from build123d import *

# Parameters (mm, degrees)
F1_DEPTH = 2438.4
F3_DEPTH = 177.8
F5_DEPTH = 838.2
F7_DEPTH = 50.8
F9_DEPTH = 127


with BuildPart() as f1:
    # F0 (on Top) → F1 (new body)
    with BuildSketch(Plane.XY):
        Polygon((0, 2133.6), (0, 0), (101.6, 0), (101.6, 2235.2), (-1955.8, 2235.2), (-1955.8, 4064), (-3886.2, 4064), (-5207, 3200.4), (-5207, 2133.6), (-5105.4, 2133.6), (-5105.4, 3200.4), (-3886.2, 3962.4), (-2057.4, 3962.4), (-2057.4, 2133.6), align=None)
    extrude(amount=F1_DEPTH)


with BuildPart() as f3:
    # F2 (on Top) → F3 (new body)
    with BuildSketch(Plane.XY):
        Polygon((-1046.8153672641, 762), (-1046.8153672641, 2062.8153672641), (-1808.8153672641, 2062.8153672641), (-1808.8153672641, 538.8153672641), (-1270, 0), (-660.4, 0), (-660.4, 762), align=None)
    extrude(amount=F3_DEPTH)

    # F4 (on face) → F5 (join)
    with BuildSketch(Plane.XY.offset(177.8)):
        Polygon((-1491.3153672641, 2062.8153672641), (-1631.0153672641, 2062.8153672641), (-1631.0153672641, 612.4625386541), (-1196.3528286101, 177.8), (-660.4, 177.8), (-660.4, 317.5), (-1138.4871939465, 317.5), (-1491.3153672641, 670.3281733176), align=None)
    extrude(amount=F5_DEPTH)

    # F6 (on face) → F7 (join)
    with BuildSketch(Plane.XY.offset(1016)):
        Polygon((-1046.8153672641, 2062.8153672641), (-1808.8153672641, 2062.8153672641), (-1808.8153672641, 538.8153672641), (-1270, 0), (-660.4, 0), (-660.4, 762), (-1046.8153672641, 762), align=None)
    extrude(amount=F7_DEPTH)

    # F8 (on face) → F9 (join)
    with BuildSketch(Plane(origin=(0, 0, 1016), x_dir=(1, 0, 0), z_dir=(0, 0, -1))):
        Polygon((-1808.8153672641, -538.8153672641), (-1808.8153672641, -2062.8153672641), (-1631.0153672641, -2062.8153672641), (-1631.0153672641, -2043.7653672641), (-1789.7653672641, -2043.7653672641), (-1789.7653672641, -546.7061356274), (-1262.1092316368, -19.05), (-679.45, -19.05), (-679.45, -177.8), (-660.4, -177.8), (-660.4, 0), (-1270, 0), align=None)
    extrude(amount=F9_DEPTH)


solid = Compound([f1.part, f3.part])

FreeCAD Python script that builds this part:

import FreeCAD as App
import Part
import Sketcher
Q = App.Units.Quantity

doc = App.newDocument("Part")
body = doc.addObject("PartDesign::Body", "Body")

# Sketch on XY plane
sketch1 = body.newObject("Sketcher::SketchObject", "Sketch")
sketch1.AttachmentSupport = (doc.getObject("XY_Plane"), [""])
sketch1.MapMode = "FlatFace"
sketch1.addGeometry(Part.LineSegment(App.Vector(0, 2134, 0), App.Vector(0, 0, 0)), False)
sketch1.addGeometry(Part.LineSegment(App.Vector(0, 0, 0), App.Vector(102, 0, 0)), False)
sketch1.addGeometry(Part.LineSegment(App.Vector(102, 0, 0), App.Vector(102, 2235, 0)), False)
sketch1.addGeometry(Part.LineSegment(App.Vector(102, 2235, 0), App.Vector(-1956, 2235, 0)), False)
sketch1.addGeometry(Part.LineSegment(App.Vector(-1956, 2235, 0), App.Vector(-1956, 4064, 0)), False)
sketch1.addGeometry(Part.LineSegment(App.Vector(-1956, 4064, 0), App.Vector(-3886, 4064, 0)), False)
sketch1.addGeometry(Part.LineSegment(App.Vector(-3886, 4064, 0), App.Vector(-5207, 3200, 0)), False)
sketch1.addGeometry(Part.LineSegment(App.Vector(-5207, 3200, 0), App.Vector(-5207, 2134, 0)), False)
sketch1.addGeometry(Part.LineSegment(App.Vector(-5207, 2134, 0), App.Vector(-5105, 2134, 0)), False)
sketch1.addGeometry(Part.LineSegment(App.Vector(-5105, 2134, 0), App.Vector(-5105, 3200, 0)), False)
sketch1.addGeometry(Part.LineSegment(App.Vector(-5105, 3200, 0), App.Vector(-3886, 3962, 0)), False)
sketch1.addGeometry(Part.LineSegment(App.Vector(-3886, 3962, 0), App.Vector(-2057, 3962, 0)), False)
sketch1.addGeometry(Part.LineSegment(App.Vector(-2057, 3962, 0), App.Vector(-2057, 2134, 0)), False)
sketch1.addGeometry(Part.LineSegment(App.Vector(-2057, 2134, 0), App.Vector(0, 2134, 0)), False)
sketch1.addConstraint(Sketcher.Constraint("Coincident", 0, 2, 1, 1))
sketch1.addConstraint(Sketcher.Constraint("Coincident", 1, 2, 2, 1))
sketch1.addConstraint(Sketcher.Constraint("Coincident", 2, 2, 3, 1))
sketch1.addConstraint(Sketcher.Constraint("Coincident", 3, 2, 4, 1))
sketch1.addConstraint(Sketcher.Constraint("Coincident", 4, 2, 5, 1))
sketch1.addConstraint(Sketcher.Constraint("Coincident", 5, 2, 6, 1))
sketch1.addConstraint(Sketcher.Constraint("Coincident", 6, 2, 7, 1))
sketch1.addConstraint(Sketcher.Constraint("Coincident", 7, 2, 8, 1))
sketch1.addConstraint(Sketcher.Constraint("Coincident", 8, 2, 9, 1))
sketch1.addConstraint(Sketcher.Constraint("Coincident", 9, 2, 10, 1))
sketch1.addConstraint(Sketcher.Constraint("Coincident", 10, 2, 11, 1))
sketch1.addConstraint(Sketcher.Constraint("Coincident", 11, 2, 12, 1))
sketch1.addConstraint(Sketcher.Constraint("Coincident", 12, 2, 13, 1))
sketch1.addConstraint(Sketcher.Constraint("Coincident", 13, 2, 0, 1))
sketch1.addConstraint(Sketcher.Constraint("Vertical", 0))
sketch1.addConstraint(Sketcher.Constraint("Horizontal", 1))
sketch1.addConstraint(Sketcher.Constraint("Vertical", 2))
sketch1.addConstraint(Sketcher.Constraint("Horizontal", 3))
sketch1.addConstraint(Sketcher.Constraint("Vertical", 4))
sketch1.addConstraint(Sketcher.Constraint("Horizontal", 5))
sketch1.addConstraint(Sketcher.Constraint("Vertical", 7))
sketch1.addConstraint(Sketcher.Constraint("Horizontal", 8))
sketch1.addConstraint(Sketcher.Constraint("Vertical", 9))
sketch1.addConstraint(Sketcher.Constraint("Horizontal", 11))
sketch1.addConstraint(Sketcher.Constraint("Vertical", 12))
sketch1.addConstraint(Sketcher.Constraint("Horizontal", 13))
sketch1.addConstraint(Sketcher.Constraint("Coincident", 0, 2, -1, 1))
sketch1.addConstraint(Sketcher.Constraint("Horizontal", 6, 2, 9, 2))
sketch1.addConstraint(Sketcher.Constraint("Horizontal", 8, 2, 12, 2))
sketch1.addConstraint(Sketcher.Constraint("Vertical", 5, 2, 10, 2))
sketch1.addConstraint(Sketcher.Constraint("Equal", 1, 8))
sketch1.addConstraint(Sketcher.Constraint("Equal", 3, 13))
sketch1.addConstraint(Sketcher.Constraint("Equal", 11, 4))
sketch1.addConstraint(Sketcher.Constraint("Equal", 4, 12))
sketch1.addConstraint(Sketcher.Constraint("DistanceX", 1, 1, 1, 2, Q("4 in")))
sketch1.addConstraint(Sketcher.Constraint("DistanceX", 3, 2, 3, 1, Q("81 in")))
sketch1.addConstraint(Sketcher.Constraint("DistanceX", 5, 2, 5, 1, Q("76 in")))
sketch1.addConstraint(Sketcher.Constraint("DistanceY", 0, 2, 0, 1, Q("84 in")))
sketch1.addConstraint(Sketcher.Constraint("DistanceY", 2, 1, 2, 2, Q("88 in")))
sketch1.addConstraint(Sketcher.Constraint("DistanceY", 7, 2, 7, 1, Q("42 in")))
sketch1.addConstraint(Sketcher.Constraint("DistanceX", 6, 2, -1, 1, Q("205 in")))
pad1 = body.newObject("PartDesign::Pad", "Pad")
pad1.Profile = sketch1
pad1.Length = Q("96 in")
body2 = doc.addObject("PartDesign::Body", "Body001")

# Sketch on XY plane
sketch2 = body2.newObject("Sketcher::SketchObject", "Sketch001")
sketch2.AttachmentSupport = (doc.getObject("XY_Plane001"), [""])
sketch2.MapMode = "FlatFace"
sketch2.addGeometry(Part.LineSegment(App.Vector(-1047, 762, 0), App.Vector(-1047, 2063, 0)), False)
sketch2.addGeometry(Part.LineSegment(App.Vector(-1047, 2063, 0), App.Vector(-1809, 2063, 0)), False)
sketch2.addGeometry(Part.LineSegment(App.Vector(-1809, 2063, 0), App.Vector(-1809, 539, 0)), False)
sketch2.addGeometry(Part.LineSegment(App.Vector(-1809, 539, 0), App.Vector(-1270, 0, 0)), False)
sketch2.addGeometry(Part.LineSegment(App.Vector(-1270, 0, 0), App.Vector(-660, 0, 0)), False)
sketch2.addGeometry(Part.LineSegment(App.Vector(-660, 0, 0), App.Vector(-660, 762, 0)), False)
sketch2.addGeometry(Part.LineSegment(App.Vector(-660, 762, 0), App.Vector(-1047, 762, 0)), False)
sketch2.addConstraint(Sketcher.Constraint("Coincident", 0, 2, 1, 1))
sketch2.addConstraint(Sketcher.Constraint("Coincident", 1, 2, 2, 1))
sketch2.addConstraint(Sketcher.Constraint("Coincident", 2, 2, 3, 1))
sketch2.addConstraint(Sketcher.Constraint("Coincident", 3, 2, 4, 1))
sketch2.addConstraint(Sketcher.Constraint("Coincident", 4, 2, 5, 1))
sketch2.addConstraint(Sketcher.Constraint("Coincident", 5, 2, 6, 1))
sketch2.addConstraint(Sketcher.Constraint("Coincident", 6, 2, 0, 1))
sketch2.addConstraint(Sketcher.Constraint("Vertical", 0))
sketch2.addConstraint(Sketcher.Constraint("Horizontal", 1))
sketch2.addConstraint(Sketcher.Constraint("Vertical", 2))
sketch2.addConstraint(Sketcher.Constraint("Horizontal", 4))
sketch2.addConstraint(Sketcher.Constraint("Vertical", 5))
sketch2.addConstraint(Sketcher.Constraint("Horizontal", 6))
sketch2.addConstraint(Sketcher.Constraint("PointOnObject", 3, 2, -1))
sketch2.addConstraint(Sketcher.Constraint("Equal", 1, 5))
sketch2.addConstraint(Sketcher.Constraint("DistanceX", 1, 2, 1, 1, Q("30 in")))
sketch2.addConstraint(Sketcher.Constraint("DistanceX", 4, 1, 4, 2, Q("24 in")))
sketch2.addConstraint(Sketcher.Constraint("DistanceY", 2, 2, 2, 1, Q("60 in")))
sketch2.addConstraint(Sketcher.Constraint("Distance", 3, Q("30 in")))
sketch2.addConstraint(Sketcher.Constraint("DistanceX", 3, 2, -1, 1, Q("50 in")))
sketch2.addConstraint(Sketcher.Constraint("Angle", 3, Q("-45 deg")))
pad2 = body2.newObject("PartDesign::Pad", "Pad001")
pad2.Profile = sketch2
pad2.Length = Q("7 in")

# Sketch on XY plane
sketch3 = body2.newObject("Sketcher::SketchObject", "Sketch002")
sketch3.AttachmentSupport = (doc.getObject("XY_Plane001"), [""])
sketch3.MapMode = "FlatFace"
sketch3.AttachmentOffset = App.Placement(App.Vector(0, 0, 7 * 25.4), App.Rotation())
sketch3.addGeometry(Part.LineSegment(App.Vector(-1491, 2063, 0), App.Vector(-1631, 2063, 0)), False)
sketch3.addGeometry(Part.LineSegment(App.Vector(-1631, 2063, 0), App.Vector(-1631, 612, 0)), False)
sketch3.addGeometry(Part.LineSegment(App.Vector(-1631, 612, 0), App.Vector(-1196, 178, 0)), False)
sketch3.addGeometry(Part.LineSegment(App.Vector(-1196, 178, 0), App.Vector(-660, 178, 0)), False)
sketch3.addGeometry(Part.LineSegment(App.Vector(-660, 178, 0), App.Vector(-660, 318, 0)), False)
sketch3.addGeometry(Part.LineSegment(App.Vector(-660, 318, 0), App.Vector(-1138, 318, 0)), False)
sketch3.addGeometry(Part.LineSegment(App.Vector(-1138, 318, 0), App.Vector(-1491, 670, 0)), False)
sketch3.addGeometry(Part.LineSegment(App.Vector(-1491, 670, 0), App.Vector(-1491, 2063, 0)), False)
sketch3.addConstraint(Sketcher.Constraint("Coincident", 0, 2, 1, 1))
sketch3.addConstraint(Sketcher.Constraint("Coincident", 1, 2, 2, 1))
sketch3.addConstraint(Sketcher.Constraint("Coincident", 2, 2, 3, 1))
sketch3.addConstraint(Sketcher.Constraint("Coincident", 3, 2, 4, 1))
sketch3.addConstraint(Sketcher.Constraint("Coincident", 4, 2, 5, 1))
sketch3.addConstraint(Sketcher.Constraint("Coincident", 5, 2, 6, 1))
sketch3.addConstraint(Sketcher.Constraint("Coincident", 6, 2, 7, 1))
sketch3.addConstraint(Sketcher.Constraint("Coincident", 7, 2, 0, 1))
sketch3.addConstraint(Sketcher.Constraint("Horizontal", 0))
sketch3.addConstraint(Sketcher.Constraint("Vertical", 1))
sketch3.addConstraint(Sketcher.Constraint("Horizontal", 3))
sketch3.addConstraint(Sketcher.Constraint("Vertical", 4))
sketch3.addConstraint(Sketcher.Constraint("Horizontal", 5))
sketch3.addConstraint(Sketcher.Constraint("Vertical", 7))
sketch3.addConstraint(Sketcher.Constraint("Parallel", 2, 6))
sketch3.addConstraint(Sketcher.Constraint("Equal", 0, 4))
sketch3.addConstraint(Sketcher.Constraint("DistanceX", 0, 2, 0, 1, Q("5.5 in")))
sketch3.addConstraint(Sketcher.Constraint("DistanceY", -1, 1, 2, 2, Q("7 in")))
sketch3.addConstraint(Sketcher.Constraint("DistanceX", 3, 2, -1, 1, Q("26 in")))
sketch3.addConstraint(Sketcher.Constraint("Angle", 2, Q("-45 deg")))
sketch3.addConstraint(Sketcher.Constraint("DistanceX", 3, 1, 3, 2, 535.952829))
sketch3.addConstraint(Sketcher.Constraint("DistanceY", 1, 2, 1, 1, 1450.352829))
sketch3.addConstraint(Sketcher.Constraint("DistanceX", 5, 2, 5, 1, 478.087194))
sketch3.addConstraint(Sketcher.Constraint("DistanceY", -1, 1, 1, 2, 612.462539))
pad3 = body2.newObject("PartDesign::Pad", "Pad002")
pad3.Profile = sketch3
pad3.Length = Q("33 in")

# Sketch on XY plane
sketch4 = body2.newObject("Sketcher::SketchObject", "Sketch003")
sketch4.AttachmentSupport = (doc.getObject("XY_Plane001"), [""])
sketch4.MapMode = "FlatFace"
sketch4.AttachmentOffset = App.Placement(App.Vector(0, 0, 40 * 25.4), App.Rotation())
sketch4.addGeometry(Part.LineSegment(App.Vector(-1047, 2063, 0), App.Vector(-1809, 2063, 0)), False)
sketch4.addGeometry(Part.LineSegment(App.Vector(-1809, 2063, 0), App.Vector(-1809, 539, 0)), False)
sketch4.addGeometry(Part.LineSegment(App.Vector(-1809, 539, 0), App.Vector(-1270, 0, 0)), False)
sketch4.addGeometry(Part.LineSegment(App.Vector(-1270, 0, 0), App.Vector(-660, 0, 0)), False)
sketch4.addGeometry(Part.LineSegment(App.Vector(-660, 0, 0), App.Vector(-660, 762, 0)), False)
sketch4.addGeometry(Part.LineSegment(App.Vector(-660, 762, 0), App.Vector(-1047, 762, 0)), False)
sketch4.addGeometry(Part.LineSegment(App.Vector(-1047, 762, 0), App.Vector(-1047, 2063, 0)), False)
sketch4.addConstraint(Sketcher.Constraint("Coincident", 0, 2, 1, 1))
sketch4.addConstraint(Sketcher.Constraint("Coincident", 1, 2, 2, 1))
sketch4.addConstraint(Sketcher.Constraint("Coincident", 2, 2, 3, 1))
sketch4.addConstraint(Sketcher.Constraint("Coincident", 3, 2, 4, 1))
sketch4.addConstraint(Sketcher.Constraint("Coincident", 4, 2, 5, 1))
sketch4.addConstraint(Sketcher.Constraint("Coincident", 5, 2, 6, 1))
sketch4.addConstraint(Sketcher.Constraint("Coincident", 6, 2, 0, 1))
sketch4.addConstraint(Sketcher.Constraint("Horizontal", 0))
sketch4.addConstraint(Sketcher.Constraint("Vertical", 1))
sketch4.addConstraint(Sketcher.Constraint("Horizontal", 3))
sketch4.addConstraint(Sketcher.Constraint("Vertical", 4))
sketch4.addConstraint(Sketcher.Constraint("Horizontal", 5))
sketch4.addConstraint(Sketcher.Constraint("Vertical", 6))
sketch4.addConstraint(Sketcher.Constraint("PointOnObject", 2, 2, -1))
sketch4.addConstraint(Sketcher.Constraint("Equal", 0, 4))
sketch4.addConstraint(Sketcher.Constraint("DistanceX", 0, 2, 0, 1, Q("30 in")))
sketch4.addConstraint(Sketcher.Constraint("DistanceX", 3, 1, 3, 2, Q("24 in")))
sketch4.addConstraint(Sketcher.Constraint("DistanceY", 1, 2, 1, 1, Q("60 in")))
sketch4.addConstraint(Sketcher.Constraint("Distance", 2, Q("30 in")))
sketch4.addConstraint(Sketcher.Constraint("DistanceX", 2, 2, -1, 1, Q("50 in")))
sketch4.addConstraint(Sketcher.Constraint("Angle", 2, Q("-45 deg")))
pad4 = body2.newObject("PartDesign::Pad", "Pad003")
pad4.Profile = sketch4
pad4.Length = Q("2 in")

# Sketch on XY plane
sketch5 = body2.newObject("Sketcher::SketchObject", "Sketch004")
sketch5.AttachmentSupport = (doc.getObject("XY_Plane001"), [""])
sketch5.MapMode = "FlatFace"
sketch5.AttachmentOffset = App.Placement(App.Vector(0, 0, 40 * 25.4), App.Rotation())
sketch5.addGeometry(Part.LineSegment(App.Vector(-1809, 539, 0), App.Vector(-1809, 2063, 0)), False)
sketch5.addGeometry(Part.LineSegment(App.Vector(-1809, 2063, 0), App.Vector(-1631, 2063, 0)), False)
sketch5.addGeometry(Part.LineSegment(App.Vector(-1631, 2063, 0), App.Vector(-1631, 2044, 0)), False)
sketch5.addGeometry(Part.LineSegment(App.Vector(-1631, 2044, 0), App.Vector(-1790, 2044, 0)), False)
sketch5.addGeometry(Part.LineSegment(App.Vector(-1790, 2044, 0), App.Vector(-1790, 547, 0)), False)
sketch5.addGeometry(Part.LineSegment(App.Vector(-1790, 547, 0), App.Vector(-1262, 19, 0)), False)
sketch5.addGeometry(Part.LineSegment(App.Vector(-1262, 19, 0), App.Vector(-679, 19, 0)), False)
sketch5.addGeometry(Part.LineSegment(App.Vector(-679, 19, 0), App.Vector(-679, 178, 0)), False)
sketch5.addGeometry(Part.LineSegment(App.Vector(-679, 178, 0), App.Vector(-660, 178, 0)), False)
sketch5.addGeometry(Part.LineSegment(App.Vector(-660, 178, 0), App.Vector(-660, 0, 0)), False)
sketch5.addGeometry(Part.LineSegment(App.Vector(-660, 0, 0), App.Vector(-1270, 0, 0)), False)
sketch5.addGeometry(Part.LineSegment(App.Vector(-1270, 0, 0), App.Vector(-1809, 539, 0)), False)
sketch5.addConstraint(Sketcher.Constraint("Coincident", 0, 2, 1, 1))
sketch5.addConstraint(Sketcher.Constraint("Coincident", 1, 2, 2, 1))
sketch5.addConstraint(Sketcher.Constraint("Coincident", 2, 2, 3, 1))
sketch5.addConstraint(Sketcher.Constraint("Coincident", 3, 2, 4, 1))
sketch5.addConstraint(Sketcher.Constraint("Coincident", 4, 2, 5, 1))
sketch5.addConstraint(Sketcher.Constraint("Coincident", 5, 2, 6, 1))
sketch5.addConstraint(Sketcher.Constraint("Coincident", 6, 2, 7, 1))
sketch5.addConstraint(Sketcher.Constraint("Coincident", 7, 2, 8, 1))
sketch5.addConstraint(Sketcher.Constraint("Coincident", 8, 2, 9, 1))
sketch5.addConstraint(Sketcher.Constraint("Coincident", 9, 2, 10, 1))
sketch5.addConstraint(Sketcher.Constraint("Coincident", 10, 2, 11, 1))
sketch5.addConstraint(Sketcher.Constraint("Coincident", 11, 2, 0, 1))
sketch5.addConstraint(Sketcher.Constraint("Vertical", 0))
sketch5.addConstraint(Sketcher.Constraint("Horizontal", 1))
sketch5.addConstraint(Sketcher.Constraint("Vertical", 2))
sketch5.addConstraint(Sketcher.Constraint("Horizontal", 3))
sketch5.addConstraint(Sketcher.Constraint("Vertical", 4))
sketch5.addConstraint(Sketcher.Constraint("Horizontal", 6))
sketch5.addConstraint(Sketcher.Constraint("Vertical", 7))
sketch5.addConstraint(Sketcher.Constraint("Horizontal", 8))
sketch5.addConstraint(Sketcher.Constraint("Vertical", 9))
sketch5.addConstraint(Sketcher.Constraint("Horizontal", 10))
sketch5.addConstraint(Sketcher.Constraint("PointOnObject", 9, 2, -1))
sketch5.addConstraint(Sketcher.Constraint("Parallel", 5, 11))
sketch5.addConstraint(Sketcher.Constraint("Equal", 8, 2))
sketch5.addConstraint(Sketcher.Constraint("Equal", 3, 7))
sketch5.addConstraint(Sketcher.Constraint("Equal", 1, 9))
sketch5.addConstraint(Sketcher.Constraint("DistanceX", 1, 1, 1, 2, Q("7 in")))
sketch5.addConstraint(Sketcher.Constraint("DistanceX", 10, 2, 10, 1, Q("24 in")))
sketch5.addConstraint(Sketcher.Constraint("DistanceY", 0, 1, 0, 2, Q("60 in")))
sketch5.addConstraint(Sketcher.Constraint("Distance", 11, Q("30 in")))
sketch5.addConstraint(Sketcher.Constraint("DistanceX", 8, 2, -1, 1, Q("26 in")))
sketch5.addConstraint(Sketcher.Constraint("Angle", 5, Q("-45 deg")))
sketch5.addConstraint(Sketcher.Constraint("DistanceX", 3, 2, 3, 1, Q("6.25 in")))
sketch5.addConstraint(Sketcher.Constraint("DistanceX", 8, 1, 8, 2, Q("0.75 in")))
sketch5.addConstraint(Sketcher.Constraint("DistanceX", 6, 1, 6, 2, 582.659232))
pad5 = body2.newObject("PartDesign::Pad", "Pad004")
pad5.Profile = sketch5
pad5.Length = Q("5 in")
pad5.Reversed = True

doc.recompute()
